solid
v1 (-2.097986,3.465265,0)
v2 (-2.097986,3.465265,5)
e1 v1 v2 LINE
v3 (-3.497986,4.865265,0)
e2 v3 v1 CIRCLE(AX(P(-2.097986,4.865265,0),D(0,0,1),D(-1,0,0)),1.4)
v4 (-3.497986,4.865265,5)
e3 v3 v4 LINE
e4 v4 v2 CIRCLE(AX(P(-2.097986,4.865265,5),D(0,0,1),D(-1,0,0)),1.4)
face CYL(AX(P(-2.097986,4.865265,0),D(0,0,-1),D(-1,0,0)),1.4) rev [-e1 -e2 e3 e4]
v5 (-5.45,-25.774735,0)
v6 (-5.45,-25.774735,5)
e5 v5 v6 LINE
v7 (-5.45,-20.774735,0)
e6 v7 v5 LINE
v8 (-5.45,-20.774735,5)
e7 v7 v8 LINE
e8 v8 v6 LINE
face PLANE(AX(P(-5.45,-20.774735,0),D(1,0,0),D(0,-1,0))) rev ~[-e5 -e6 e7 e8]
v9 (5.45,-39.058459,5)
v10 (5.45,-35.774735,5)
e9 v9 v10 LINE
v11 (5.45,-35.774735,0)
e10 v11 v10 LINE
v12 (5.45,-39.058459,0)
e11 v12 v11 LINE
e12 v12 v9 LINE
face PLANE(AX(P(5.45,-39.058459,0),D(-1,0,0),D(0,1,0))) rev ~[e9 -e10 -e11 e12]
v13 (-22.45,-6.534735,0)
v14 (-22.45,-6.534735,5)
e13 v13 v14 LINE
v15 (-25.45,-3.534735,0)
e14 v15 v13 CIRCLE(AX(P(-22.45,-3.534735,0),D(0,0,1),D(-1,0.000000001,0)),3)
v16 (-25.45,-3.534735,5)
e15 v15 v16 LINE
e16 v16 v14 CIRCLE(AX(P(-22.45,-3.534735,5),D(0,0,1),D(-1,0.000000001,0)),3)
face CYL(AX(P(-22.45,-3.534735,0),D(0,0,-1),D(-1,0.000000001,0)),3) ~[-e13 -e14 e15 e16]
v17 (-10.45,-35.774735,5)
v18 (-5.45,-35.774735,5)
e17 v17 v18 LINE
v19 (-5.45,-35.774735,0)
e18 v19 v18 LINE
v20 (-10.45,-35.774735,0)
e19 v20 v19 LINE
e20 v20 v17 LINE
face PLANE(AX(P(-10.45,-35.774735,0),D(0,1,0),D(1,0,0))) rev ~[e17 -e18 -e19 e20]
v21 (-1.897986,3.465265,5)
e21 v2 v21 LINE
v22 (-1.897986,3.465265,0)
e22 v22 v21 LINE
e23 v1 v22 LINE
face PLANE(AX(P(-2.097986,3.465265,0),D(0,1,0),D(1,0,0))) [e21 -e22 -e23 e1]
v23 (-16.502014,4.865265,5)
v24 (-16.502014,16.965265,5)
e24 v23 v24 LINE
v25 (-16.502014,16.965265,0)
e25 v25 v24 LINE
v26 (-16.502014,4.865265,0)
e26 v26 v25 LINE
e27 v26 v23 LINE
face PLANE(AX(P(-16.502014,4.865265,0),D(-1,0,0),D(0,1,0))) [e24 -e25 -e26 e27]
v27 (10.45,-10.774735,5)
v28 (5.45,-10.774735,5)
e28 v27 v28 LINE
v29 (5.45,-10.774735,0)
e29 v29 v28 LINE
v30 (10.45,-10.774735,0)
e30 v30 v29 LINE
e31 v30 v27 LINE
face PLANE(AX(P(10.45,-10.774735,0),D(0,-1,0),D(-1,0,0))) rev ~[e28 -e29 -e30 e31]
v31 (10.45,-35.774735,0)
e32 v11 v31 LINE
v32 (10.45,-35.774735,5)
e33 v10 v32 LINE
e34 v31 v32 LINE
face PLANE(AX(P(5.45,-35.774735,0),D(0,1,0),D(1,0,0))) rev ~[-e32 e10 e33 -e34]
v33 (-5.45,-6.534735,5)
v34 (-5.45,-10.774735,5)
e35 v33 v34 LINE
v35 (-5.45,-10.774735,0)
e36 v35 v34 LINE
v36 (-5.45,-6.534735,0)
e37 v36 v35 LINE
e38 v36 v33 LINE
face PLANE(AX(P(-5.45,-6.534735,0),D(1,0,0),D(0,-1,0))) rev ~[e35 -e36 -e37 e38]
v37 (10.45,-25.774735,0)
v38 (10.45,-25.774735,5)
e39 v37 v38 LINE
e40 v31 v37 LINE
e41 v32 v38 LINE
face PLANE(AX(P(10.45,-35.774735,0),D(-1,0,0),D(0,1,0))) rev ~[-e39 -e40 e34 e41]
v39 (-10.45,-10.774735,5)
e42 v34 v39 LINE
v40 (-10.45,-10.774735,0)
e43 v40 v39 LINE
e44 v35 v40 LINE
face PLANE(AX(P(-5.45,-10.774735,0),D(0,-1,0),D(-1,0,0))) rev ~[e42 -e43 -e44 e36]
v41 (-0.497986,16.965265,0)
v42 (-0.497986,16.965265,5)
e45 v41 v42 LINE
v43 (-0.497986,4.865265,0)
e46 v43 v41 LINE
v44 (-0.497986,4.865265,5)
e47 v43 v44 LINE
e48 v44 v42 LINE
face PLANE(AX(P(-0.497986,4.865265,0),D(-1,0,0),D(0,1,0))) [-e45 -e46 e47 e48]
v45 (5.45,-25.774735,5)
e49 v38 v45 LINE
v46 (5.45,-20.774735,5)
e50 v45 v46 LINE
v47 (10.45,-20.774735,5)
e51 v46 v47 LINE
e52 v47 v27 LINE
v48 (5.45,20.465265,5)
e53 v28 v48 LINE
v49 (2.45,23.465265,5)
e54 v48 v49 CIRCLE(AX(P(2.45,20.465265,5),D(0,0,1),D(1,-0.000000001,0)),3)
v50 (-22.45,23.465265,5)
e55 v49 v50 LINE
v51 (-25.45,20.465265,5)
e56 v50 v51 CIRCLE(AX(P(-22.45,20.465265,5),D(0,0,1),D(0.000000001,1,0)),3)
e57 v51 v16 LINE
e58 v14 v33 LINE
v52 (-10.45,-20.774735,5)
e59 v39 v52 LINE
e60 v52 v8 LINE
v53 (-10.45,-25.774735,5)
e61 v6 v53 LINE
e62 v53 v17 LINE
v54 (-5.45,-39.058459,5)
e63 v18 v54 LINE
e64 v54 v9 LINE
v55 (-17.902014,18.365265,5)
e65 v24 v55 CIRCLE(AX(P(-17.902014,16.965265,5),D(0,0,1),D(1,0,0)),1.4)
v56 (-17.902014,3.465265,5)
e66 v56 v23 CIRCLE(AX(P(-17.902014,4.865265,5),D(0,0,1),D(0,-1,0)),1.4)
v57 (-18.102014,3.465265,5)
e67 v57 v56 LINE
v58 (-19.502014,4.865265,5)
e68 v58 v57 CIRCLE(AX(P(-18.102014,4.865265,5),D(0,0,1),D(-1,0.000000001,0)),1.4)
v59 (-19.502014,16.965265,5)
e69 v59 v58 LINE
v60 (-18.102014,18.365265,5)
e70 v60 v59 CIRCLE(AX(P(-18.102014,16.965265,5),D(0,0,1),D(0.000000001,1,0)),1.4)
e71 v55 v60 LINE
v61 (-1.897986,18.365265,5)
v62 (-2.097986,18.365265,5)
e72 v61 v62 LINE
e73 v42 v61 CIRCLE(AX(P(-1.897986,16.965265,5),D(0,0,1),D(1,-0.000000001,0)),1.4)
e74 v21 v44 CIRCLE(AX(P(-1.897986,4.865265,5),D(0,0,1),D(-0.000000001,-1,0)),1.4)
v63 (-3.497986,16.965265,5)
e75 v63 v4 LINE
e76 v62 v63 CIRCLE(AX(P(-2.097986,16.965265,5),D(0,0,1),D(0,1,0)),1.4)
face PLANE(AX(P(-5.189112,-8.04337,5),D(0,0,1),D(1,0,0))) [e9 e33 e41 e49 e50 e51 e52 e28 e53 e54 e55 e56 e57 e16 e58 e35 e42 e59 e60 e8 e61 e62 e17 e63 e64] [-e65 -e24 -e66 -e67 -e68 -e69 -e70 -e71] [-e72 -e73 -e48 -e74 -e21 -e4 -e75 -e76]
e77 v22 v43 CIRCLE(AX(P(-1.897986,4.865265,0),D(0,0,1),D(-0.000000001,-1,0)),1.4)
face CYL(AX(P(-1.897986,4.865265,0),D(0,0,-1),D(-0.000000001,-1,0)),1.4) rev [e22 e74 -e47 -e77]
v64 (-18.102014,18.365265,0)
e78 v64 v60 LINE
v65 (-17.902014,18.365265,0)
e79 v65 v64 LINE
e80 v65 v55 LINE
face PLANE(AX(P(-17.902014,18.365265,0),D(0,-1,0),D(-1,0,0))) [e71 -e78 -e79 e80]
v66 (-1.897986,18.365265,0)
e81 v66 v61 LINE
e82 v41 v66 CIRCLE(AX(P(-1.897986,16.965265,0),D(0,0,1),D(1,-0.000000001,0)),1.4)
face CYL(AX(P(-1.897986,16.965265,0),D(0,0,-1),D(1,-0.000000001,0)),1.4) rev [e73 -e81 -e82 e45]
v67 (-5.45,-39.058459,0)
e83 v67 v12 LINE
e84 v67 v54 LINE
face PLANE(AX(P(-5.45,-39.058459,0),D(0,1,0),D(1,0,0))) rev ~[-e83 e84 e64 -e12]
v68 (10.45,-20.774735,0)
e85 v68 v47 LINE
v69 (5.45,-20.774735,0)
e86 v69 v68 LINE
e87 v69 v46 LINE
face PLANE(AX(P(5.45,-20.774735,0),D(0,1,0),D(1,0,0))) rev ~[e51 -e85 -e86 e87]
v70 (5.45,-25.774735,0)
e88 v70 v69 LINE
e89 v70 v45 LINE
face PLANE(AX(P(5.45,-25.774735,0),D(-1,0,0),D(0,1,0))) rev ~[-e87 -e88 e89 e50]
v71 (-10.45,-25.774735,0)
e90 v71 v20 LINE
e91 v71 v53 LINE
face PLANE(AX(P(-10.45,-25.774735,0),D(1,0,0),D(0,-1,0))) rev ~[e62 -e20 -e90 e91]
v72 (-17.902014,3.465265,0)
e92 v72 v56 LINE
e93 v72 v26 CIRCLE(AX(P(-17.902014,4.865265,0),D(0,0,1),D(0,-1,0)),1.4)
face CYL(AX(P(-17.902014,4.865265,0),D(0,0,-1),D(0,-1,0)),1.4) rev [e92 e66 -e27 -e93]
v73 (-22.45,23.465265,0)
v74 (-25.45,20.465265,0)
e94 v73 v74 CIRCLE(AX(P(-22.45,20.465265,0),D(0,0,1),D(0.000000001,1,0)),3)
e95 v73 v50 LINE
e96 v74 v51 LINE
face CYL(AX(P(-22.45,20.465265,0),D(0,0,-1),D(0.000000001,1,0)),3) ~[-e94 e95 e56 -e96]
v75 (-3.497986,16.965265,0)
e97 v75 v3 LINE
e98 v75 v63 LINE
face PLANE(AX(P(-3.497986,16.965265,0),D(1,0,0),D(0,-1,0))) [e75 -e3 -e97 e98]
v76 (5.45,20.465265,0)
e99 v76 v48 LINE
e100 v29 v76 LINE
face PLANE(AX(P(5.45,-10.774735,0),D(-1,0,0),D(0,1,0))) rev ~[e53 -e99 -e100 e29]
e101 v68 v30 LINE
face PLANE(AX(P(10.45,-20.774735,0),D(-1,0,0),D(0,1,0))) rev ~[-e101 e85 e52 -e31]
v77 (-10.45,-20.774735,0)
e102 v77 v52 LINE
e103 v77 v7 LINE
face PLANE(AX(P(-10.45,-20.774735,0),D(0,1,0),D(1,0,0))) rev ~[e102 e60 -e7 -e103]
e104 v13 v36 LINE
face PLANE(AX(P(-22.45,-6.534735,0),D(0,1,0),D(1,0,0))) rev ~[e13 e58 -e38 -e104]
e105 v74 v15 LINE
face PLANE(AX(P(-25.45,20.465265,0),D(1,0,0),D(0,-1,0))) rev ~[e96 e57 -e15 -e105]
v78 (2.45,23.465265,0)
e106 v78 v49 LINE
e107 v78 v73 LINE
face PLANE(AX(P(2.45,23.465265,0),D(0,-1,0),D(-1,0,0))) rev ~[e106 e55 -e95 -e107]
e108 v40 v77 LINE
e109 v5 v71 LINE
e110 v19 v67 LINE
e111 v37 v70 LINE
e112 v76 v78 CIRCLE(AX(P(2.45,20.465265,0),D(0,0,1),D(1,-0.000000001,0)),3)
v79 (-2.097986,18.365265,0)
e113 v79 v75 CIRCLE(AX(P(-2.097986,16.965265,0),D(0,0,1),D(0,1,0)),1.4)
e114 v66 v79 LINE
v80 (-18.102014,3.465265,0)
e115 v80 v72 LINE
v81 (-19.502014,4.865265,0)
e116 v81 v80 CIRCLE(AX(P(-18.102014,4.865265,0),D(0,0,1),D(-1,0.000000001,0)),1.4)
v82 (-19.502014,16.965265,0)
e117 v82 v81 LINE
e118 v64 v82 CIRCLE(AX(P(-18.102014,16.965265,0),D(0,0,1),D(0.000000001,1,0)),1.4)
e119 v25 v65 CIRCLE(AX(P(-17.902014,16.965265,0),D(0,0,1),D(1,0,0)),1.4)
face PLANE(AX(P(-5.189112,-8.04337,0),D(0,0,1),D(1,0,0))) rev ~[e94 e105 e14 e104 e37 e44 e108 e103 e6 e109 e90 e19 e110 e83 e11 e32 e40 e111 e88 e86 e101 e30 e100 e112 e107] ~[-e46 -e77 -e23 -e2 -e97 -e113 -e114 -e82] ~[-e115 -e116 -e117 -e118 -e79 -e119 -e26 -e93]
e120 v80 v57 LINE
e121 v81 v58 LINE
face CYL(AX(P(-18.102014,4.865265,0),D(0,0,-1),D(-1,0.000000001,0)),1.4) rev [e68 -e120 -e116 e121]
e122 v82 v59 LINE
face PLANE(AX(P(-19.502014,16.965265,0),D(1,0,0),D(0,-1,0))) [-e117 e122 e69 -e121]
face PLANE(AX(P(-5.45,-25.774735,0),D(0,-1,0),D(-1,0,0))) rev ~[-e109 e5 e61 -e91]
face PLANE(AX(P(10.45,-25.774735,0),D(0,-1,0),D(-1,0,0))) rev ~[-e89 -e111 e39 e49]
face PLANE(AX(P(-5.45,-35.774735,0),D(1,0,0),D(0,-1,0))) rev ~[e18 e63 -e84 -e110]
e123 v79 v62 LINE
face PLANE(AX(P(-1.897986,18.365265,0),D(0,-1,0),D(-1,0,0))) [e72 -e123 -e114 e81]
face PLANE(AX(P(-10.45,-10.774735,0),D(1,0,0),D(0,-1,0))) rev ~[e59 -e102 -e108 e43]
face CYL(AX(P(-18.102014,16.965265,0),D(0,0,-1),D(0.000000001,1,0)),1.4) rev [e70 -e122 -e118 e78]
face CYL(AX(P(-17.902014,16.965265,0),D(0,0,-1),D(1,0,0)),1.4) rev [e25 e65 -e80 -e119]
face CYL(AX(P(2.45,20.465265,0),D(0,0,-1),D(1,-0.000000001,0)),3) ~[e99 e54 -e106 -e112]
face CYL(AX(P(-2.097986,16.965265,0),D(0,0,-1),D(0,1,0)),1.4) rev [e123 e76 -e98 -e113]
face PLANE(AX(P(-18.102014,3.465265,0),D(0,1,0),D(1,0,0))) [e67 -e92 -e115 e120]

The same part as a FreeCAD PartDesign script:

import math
import FreeCAD as App
import Part
import Sketcher

V = App.Vector
Q = App.Units.Quantity

doc = App.newDocument("Part")
body = doc.addObject("PartDesign::Body", "Body")

sketch1 = body.newObject("Sketcher::SketchObject", "Sketch")
sketch1.AttachmentSupport = (doc.getObject("XY_Plane"), [""])
sketch1.MapMode = "FlatFace"
sketch1.addGeometry(Part.LineSegment(V(-10.45, -25.77, 0), V(-10.45, -35.77, 0)), False)
sketch1.addGeometry(Part.LineSegment(V(-10.45, -35.77, 0), V(-5.45, -35.77, 0)), False)
sketch1.addGeometry(Part.LineSegment(V(-5.45, -35.77, 0), V(-5.45, -39.06, 0)), False)
sketch1.addGeometry(Part.LineSegment(V(-5.45, -39.06, 0), V(5.45, -39.06, 0)), False)
sketch1.addGeometry(Part.LineSegment(V(5.45, -39.06, 0), V(5.45, -35.77, 0)), False)
sketch1.addGeometry(Part.LineSegment(V(5.45, -35.77, 0), V(10.45, -35.77, 0)), False)
sketch1.addGeometry(Part.LineSegment(V(10.45, -35.77, 0), V(10.45, -25.77, 0)), False)
sketch1.addGeometry(Part.LineSegment(V(10.45, -25.77, 0), V(5.45, -25.77, 0)), False)
sketch1.addGeometry(Part.LineSegment(V(5.45, -25.77, 0), V(5.45, -20.77, 0)), False)
sketch1.addGeometry(Part.LineSegment(V(5.45, -20.77, 0), V(10.45, -20.77, 0)), False)
sketch1.addGeometry(Part.LineSegment(V(10.45, -20.77, 0), V(10.45, -10.77, 0)), False)
sketch1.addGeometry(Part.LineSegment(V(10.45, -10.77, 0), V(5.45, -10.77, 0)), False)
sketch1.addGeometry(Part.LineSegment(V(5.45, -10.77, 0), V(5.45, 20.47, 0)), False)
sketch1.addGeometry(Part.ArcOfCircle(Part.Circle(V(2.45, 20.47, 0), V(0, 0, 1), 3), math.radians(0), math.radians(90)), False)
sketch1.addGeometry(Part.LineSegment(V(2.45, 23.47, 0), V(-22.45, 23.47, 0)), False)
sketch1.addGeometry(Part.ArcOfCircle(Part.Circle(V(-22.45, 20.47, 0), V(0, 0, 1), 3), math.radians(90), math.radians(180)), False)
sketch1.addGeometry(Part.LineSegment(V(-25.45, 20.47, 0), V(-25.45, -3.53, 0)), False)
sketch1.addGeometry(Part.ArcOfCircle(Part.Circle(V(-22.45, -3.53, 0), V(0, 0, 1), 3), math.radians(180), math.radians(270)), False)
sketch1.addGeometry(Part.LineSegment(V(-22.45, -6.53, 0), V(-5.45, -6.53, 0)), False)
sketch1.addGeometry(Part.LineSegment(V(-5.45, -6.53, 0), V(-5.45, -10.77, 0)), False)
sketch1.addGeometry(Part.LineSegment(V(-5.45, -10.77, 0), V(-10.45, -10.77, 0)), False)
sketch1.addGeometry(Part.LineSegment(V(-10.45, -10.77, 0), V(-10.45, -20.77, 0)), False)
sketch1.addGeometry(Part.LineSegment(V(-10.45, -20.77, 0), V(-5.45, -20.77, 0)), False)
sketch1.addGeometry(Part.LineSegment(V(-5.45, -20.77, 0), V(-5.45, -25.77, 0)), False)
sketch1.addGeometry(Part.LineSegment(V(-5.45, -25.77, 0), V(-10.45, -25.77, 0)), False)
sketch1.addGeometry(Part.LineSegment(V(-19.5, 4.87, 0), V(-19.5, 16.97, 0)), False)
sketch1.addGeometry(Part.ArcOfCircle(Part.Circle(V(-18.1, 16.97, 0), V(0, 0, 1), 1.4), math.radians(90), math.radians(180)), False)
sketch1.addGeometry(Part.LineSegment(V(-18.1, 18.37, 0), V(-17.9, 18.37, 0)), False)
sketch1.addGeometry(Part.ArcOfCircle(Part.Circle(V(-17.9, 16.97, 0), V(0, 0, 1), 1.4), math.radians(0), math.radians(90)), False)
sketch1.addGeometry(Part.LineSegment(V(-16.5, 16.97, 0), V(-16.5, 4.87, 0)), False)
sketch1.addGeometry(Part.ArcOfCircle(Part.Circle(V(-17.9, 4.87, 0), V(0, 0, 1), 1.4), math.radians(-90), math.radians(0)), False)
sketch1.addGeometry(Part.LineSegment(V(-17.9, 3.47, 0), V(-18.1, 3.47, 0)), False)
sketch1.addGeometry(Part.ArcOfCircle(Part.Circle(V(-18.1, 4.87, 0), V(0, 0, 1), 1.4), math.radians(180), math.radians(270)), False)
sketch1.addGeometry(Part.LineSegment(V(-3.5, 4.87, 0), V(-3.5, 16.97, 0)), False)
sketch1.addGeometry(Part.ArcOfCircle(Part.Circle(V(-2.1, 16.97, 0), V(0, 0, 1), 1.4), math.radians(90), math.radians(180)), False)
sketch1.addGeometry(Part.LineSegment(V(-2.1, 18.37, 0), V(-1.9, 18.37, 0)), False)
sketch1.addGeometry(Part.ArcOfCircle(Part.Circle(V(-1.9, 16.97, 0), V(0, 0, 1), 1.4), math.radians(0), math.radians(90)), False)
sketch1.addGeometry(Part.LineSegment(V(-0.5, 16.97, 0), V(-0.5, 4.87, 0)), False)
sketch1.addGeometry(Part.ArcOfCircle(Part.Circle(V(-1.9, 4.87, 0), V(0, 0, 1), 1.4), math.radians(-90), math.radians(0)), False)
sketch1.addGeometry(Part.LineSegment(V(-1.9, 3.47, 0), V(-2.1, 3.47, 0)), False)
sketch1.addGeometry(Part.ArcOfCircle(Part.Circle(V(-2.1, 4.87, 0), V(0, 0, 1), 1.4), math.radians(-180), math.radians(-90)), False)
sketch1.addConstraint(Sketcher.Constraint("Coincident", 0, 2, 1, 1))
sketch1.addConstraint(Sketcher.Constraint("Coincident", 1, 2, 2, 1))
sketch1.addConstraint(Sketcher.Constraint("Coincident", 2, 2, 3, 1))
sketch1.addConstraint(Sketcher.Constraint("Coincident", 3, 2, 4, 1))
sketch1.addConstraint(Sketcher.Constraint("Coincident", 4, 2, 5, 1))
sketch1.addConstraint(Sketcher.Constraint("Coincident", 5, 2, 6, 1))
sketch1.addConstraint(Sketcher.Constraint("Coincident", 6, 2, 7, 1))
sketch1.addConstraint(Sketcher.Constraint("Coincident", 7, 2, 8, 1))
sketch1.addConstraint(Sketcher.Constraint("Coincident", 8, 2, 9, 1))
sketch1.addConstraint(Sketcher.Constraint("Coincident", 9, 2, 10, 1))
sketch1.addConstraint(Sketcher.Constraint("Coincident", 10, 2, 11, 1))
sketch1.addConstraint(Sketcher.Constraint("Coincident", 11, 2, 12, 1))
sketch1.addConstraint(Sketcher.Constraint("Tangent", 12, 2, 13, 1))
sketch1.addConstraint(Sketcher.Constraint("Tangent", 13, 2, 14, 1))
sketch1.addConstraint(Sketcher.Constraint("Tangent", 14, 2, 15, 1))
sketch1.addConstraint(Sketcher.Constraint("Tangent", 15, 2, 16, 1))
sketch1.addConstraint(Sketcher.Constraint("Tangent", 16, 2, 17, 1))
sketch1.addConstraint(Sketcher.Constraint("Tangent", 17, 2, 18, 1))
sketch1.addConstraint(Sketcher.Constraint("Coincident", 18, 2, 19, 1))
sketch1.addConstraint(Sketcher.Constraint("Coincident", 19, 2, 20, 1))
sketch1.addConstraint(Sketcher.Constraint("Coincident", 20, 2, 21, 1))
sketch1.addConstraint(Sketcher.Constraint("Coincident", 21, 2, 22, 1))
sketch1.addConstraint(Sketcher.Constraint("Coincident", 22, 2, 23, 1))
sketch1.addConstraint(Sketcher.Constraint("Coincident", 23, 2, 24, 1))
sketch1.addConstraint(Sketcher.Constraint("Coincident", 24, 2, 0, 1))
sketch1.addConstraint(Sketcher.Constraint("Tangent", 25, 2, 26, 2))
sketch1.addConstraint(Sketcher.Constraint("Tangent", 26, 1, 27, 1))
sketch1.addConstraint(Sketcher.Constraint("Tangent", 27, 2, 28, 2))
sketch1.addConstraint(Sketcher.Constraint("Tangent", 28, 1, 29, 1))
sketch1.addConstraint(Sketcher.Constraint("Tangent", 29, 2, 30, 2))
sketch1.addConstraint(Sketcher.Constraint("Tangent", 30, 1, 31, 1))
sketch1.addConstraint(Sketcher.Constraint("Tangent", 31, 2, 32, 2))
sketch1.addConstraint(Sketcher.Constraint("Tangent", 32, 1, 25, 1))
sketch1.addConstraint(Sketcher.Constraint("Tangent", 33, 2, 34, 2))
sketch1.addConstraint(Sketcher.Constraint("Tangent", 34, 1, 35, 1))
sketch1.addConstraint(Sketcher.Constraint("Tangent", 35, 2, 36, 2))
sketch1.addConstraint(Sketcher.Constraint("Tangent", 36, 1, 37, 1))
sketch1.addConstraint(Sketcher.Constraint("Tangent", 37, 2, 38, 2))
sketch1.addConstraint(Sketcher.Constraint("Tangent", 38, 1, 39, 1))
sketch1.addConstraint(Sketcher.Constraint("Tangent", 39, 2, 40, 2))
sketch1.addConstraint(Sketcher.Constraint("Tangent", 40, 1, 33, 1))
sketch1.addConstraint(Sketcher.Constraint("Vertical", 0))
sketch1.addConstraint(Sketcher.Constraint("Horizontal", 1))
sketch1.addConstraint(Sketcher.Constraint("Vertical", 2))
sketch1.addConstraint(Sketcher.Constraint("Horizontal", 3))
sketch1.addConstraint(Sketcher.Constraint("Vertical", 4))
sketch1.addConstraint(Sketcher.Constraint("Horizontal", 5))
sketch1.addConstraint(Sketcher.Constraint("Vertical", 6))
sketch1.addConstraint(Sketcher.Constraint("Horizontal", 7))
sketch1.addConstraint(Sketcher.Constraint("Vertical", 8))
sketch1.addConstraint(Sketcher.Constraint("Horizontal", 9))
sketch1.addConstraint(Sketcher.Constraint("Vertical", 10))
sketch1.addConstraint(Sketcher.Constraint("Horizontal", 11))
sketch1.addConstraint(Sketcher.Constraint("Vertical", 12))
sketch1.addConstraint(Sketcher.Constraint("Horizontal", 14))
sketch1.addConstraint(Sketcher.Constraint("Vertical", 16))
sketch1.addConstraint(Sketcher.Constraint("Horizontal", 18))
sketch1.addConstraint(Sketcher.Constraint("Vertical", 19))
sketch1.addConstraint(Sketcher.Constraint("Horizontal", 20))
sketch1.addConstraint(Sketcher.Constraint("Vertical", 21))
sketch1.addConstraint(Sketcher.Constraint("Horizontal", 22))
sketch1.addConstraint(Sketcher.Constraint("Vertical", 23))
sketch1.addConstraint(Sketcher.Constraint("Horizontal", 24))
sketch1.addConstraint(Sketcher.Constraint("Vertical", 25))
sketch1.addConstraint(Sketcher.Constraint("Horizontal", 27))
sketch1.addConstraint(Sketcher.Constraint("Vertical", 29))
sketch1.addConstraint(Sketcher.Constraint("Horizontal", 31))
sketch1.addConstraint(Sketcher.Constraint("Vertical", 33))
sketch1.addConstraint(Sketcher.Constraint("Horizontal", 35))
sketch1.addConstraint(Sketcher.Constraint("Vertical", 37))
sketch1.addConstraint(Sketcher.Constraint("Horizontal", 39))
sketch1.addConstraint(Sketcher.Constraint("Equal", 13, 15))
sketch1.addConstraint(Sketcher.Constraint("Equal", 15, 17))
sketch1.addConstraint(Sketcher.Constraint("Equal", 26, 28))
sketch1.addConstraint(Sketcher.Constraint("Equal", 28, 30))
sketch1.addConstraint(Sketcher.Constraint("Equal", 30, 32))
sketch1.addConstraint(Sketcher.Constraint("Equal", 32, 34))
sketch1.addConstraint(Sketcher.Constraint("Equal", 34, 36))
sketch1.addConstraint(Sketcher.Constraint("Equal", 36, 38))
sketch1.addConstraint(Sketcher.Constraint("Equal", 38, 40))
sketch1.addConstraint(Sketcher.Constraint("Symmetric", 1, 2, 4, 2, -2))
sketch1.addConstraint(Sketcher.Constraint("Symmetric", 11, 2, 19, 2, -2))
sketch1.addConstraint(Sketcher.Constraint("Symmetric", 9, 2, 21, 2, -2))
sketch1.addConstraint(Sketcher.Constraint("Symmetric", 7, 2, 23, 2, -2))
sketch1.addConstraint(Sketcher.Constraint("Horizontal", 28, 3, 34, 3))
sketch1.addConstraint(Sketcher.Constraint("Horizontal", 32, 3, 38, 3))
sketch1.addConstraint(Sketcher.Constraint("Vertical", 4, 2, 7, 2))
sketch1.addConstraint(Sketcher.Constraint("Vertical", 6, 2, 9, 2))
sketch1.addConstraint(Sketcher.Constraint("Vertical", 8, 2, 11, 2))
sketch1.addConstraint(Sketcher.Constraint("Vertical", 0, 2, 20, 2))
sketch1.addConstraint(Sketcher.Constraint("Equal", 31, 35))
sketch1.addConstraint(Sketcher.Constraint("Equal", 24, 8))
sketch1.addConstraint(Sketcher.Constraint("Equal", 6, 10))
sketch1.addConstraint(Sketcher.Constraint("Radius", 13, Q("3 mm")))
sketch1.addConstraint(Sketcher.Constraint("Radius", 26, Q("1.4 mm")))
sketch1.addConstraint(Sketcher.Constraint("DistanceX", 1, 1, 1, 2, Q("5 mm")))
sketch1.addConstraint(Sketcher.Constraint("DistanceX", 18, 1, 18, 2, Q("17 mm")))
sketch1.addConstraint(Sketcher.Constraint("DistanceY", 0, 2, 0, 1, Q("10 mm")))
sketch1.addConstraint(Sketcher.Constraint("DistanceY", 16, 2, 16, 1, Q("24 mm")))
sketch1.addConstraint(Sketcher.Constraint("DistanceX", 3, 1, 3, 2, Q("10.9 mm")))
sketch1.addConstraint(Sketcher.Constraint("DistanceX", 27, 1, 27, 2, Q("0.2 mm")))
sketch1.addConstraint(Sketcher.Constraint("DistanceY", 25, 1, 25, 2, Q("12.1 mm")))
sketch1.addConstraint(Sketcher.Constraint("DistanceY", 17, 3, 30, 1, Q("7 mm")))
sketch1.addConstraint(Sketcher.Constraint("DistanceY", 12, 1, 12, 2, Q("31.24 mm")))
sketch1.addConstraint(Sketcher.Constraint("DistanceY", 2, 2, 2, 1, Q("3.283724 mm")))
sketch1.addConstraint(Sketcher.Constraint("DistanceY", 2, 2, -1, 1, Q("39.058459 mm")))
sketch1.addConstraint(Sketcher.Constraint("DistanceX", 28, 3, 34, 3, Q("15.804028 mm")))
sketch1.addConstraint(Sketcher.Constraint("DistanceX", 26, 3, -1, 1, Q("18.102014 mm")))
pad1 = body.newObject("PartDesign::Pad", "Pad")
pad1.Profile = sketch1
pad1.Length = 5

doc.recompute()
